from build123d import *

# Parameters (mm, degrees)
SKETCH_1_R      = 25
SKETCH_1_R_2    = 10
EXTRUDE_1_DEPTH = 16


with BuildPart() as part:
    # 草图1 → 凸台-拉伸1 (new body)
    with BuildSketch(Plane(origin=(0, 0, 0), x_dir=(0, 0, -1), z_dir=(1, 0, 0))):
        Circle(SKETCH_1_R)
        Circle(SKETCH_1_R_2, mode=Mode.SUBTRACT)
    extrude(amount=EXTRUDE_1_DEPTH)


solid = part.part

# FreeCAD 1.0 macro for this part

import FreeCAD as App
import Part
import Sketcher

V = App.Vector

doc = App.newDocument("Part")
body = doc.addObject("PartDesign::Body", "Body")

sketch1 = body.newObject("Sketcher::SketchObject", "Sketch")
sketch1.AttachmentSupport = (doc.getObject("YZ_Plane"), [""])
sketch1.MapMode = "FlatFace"
sketch1.addGeometry([
    Part.Circle(V(0, 0, 0), V(0, 0, 1), 25),
    Part.Circle(V(0, 0, 0), V(0, 0, 1), 10),
], False)
sketch1.addConstraint([
    Sketcher.Constraint("Coincident", 0, 3, -1, 1),
    Sketcher.Constraint("Coincident", 1, 3, -1, 1),
    Sketcher.Constraint("Diameter", 0, 50.0),
    Sketcher.Constraint("Diameter", 1, 20.0),
])
pad1 = body.newObject("PartDesign::Pad", "Pad")
pad1.Profile = sketch1
pad1.Length = 16

doc.recompute()
